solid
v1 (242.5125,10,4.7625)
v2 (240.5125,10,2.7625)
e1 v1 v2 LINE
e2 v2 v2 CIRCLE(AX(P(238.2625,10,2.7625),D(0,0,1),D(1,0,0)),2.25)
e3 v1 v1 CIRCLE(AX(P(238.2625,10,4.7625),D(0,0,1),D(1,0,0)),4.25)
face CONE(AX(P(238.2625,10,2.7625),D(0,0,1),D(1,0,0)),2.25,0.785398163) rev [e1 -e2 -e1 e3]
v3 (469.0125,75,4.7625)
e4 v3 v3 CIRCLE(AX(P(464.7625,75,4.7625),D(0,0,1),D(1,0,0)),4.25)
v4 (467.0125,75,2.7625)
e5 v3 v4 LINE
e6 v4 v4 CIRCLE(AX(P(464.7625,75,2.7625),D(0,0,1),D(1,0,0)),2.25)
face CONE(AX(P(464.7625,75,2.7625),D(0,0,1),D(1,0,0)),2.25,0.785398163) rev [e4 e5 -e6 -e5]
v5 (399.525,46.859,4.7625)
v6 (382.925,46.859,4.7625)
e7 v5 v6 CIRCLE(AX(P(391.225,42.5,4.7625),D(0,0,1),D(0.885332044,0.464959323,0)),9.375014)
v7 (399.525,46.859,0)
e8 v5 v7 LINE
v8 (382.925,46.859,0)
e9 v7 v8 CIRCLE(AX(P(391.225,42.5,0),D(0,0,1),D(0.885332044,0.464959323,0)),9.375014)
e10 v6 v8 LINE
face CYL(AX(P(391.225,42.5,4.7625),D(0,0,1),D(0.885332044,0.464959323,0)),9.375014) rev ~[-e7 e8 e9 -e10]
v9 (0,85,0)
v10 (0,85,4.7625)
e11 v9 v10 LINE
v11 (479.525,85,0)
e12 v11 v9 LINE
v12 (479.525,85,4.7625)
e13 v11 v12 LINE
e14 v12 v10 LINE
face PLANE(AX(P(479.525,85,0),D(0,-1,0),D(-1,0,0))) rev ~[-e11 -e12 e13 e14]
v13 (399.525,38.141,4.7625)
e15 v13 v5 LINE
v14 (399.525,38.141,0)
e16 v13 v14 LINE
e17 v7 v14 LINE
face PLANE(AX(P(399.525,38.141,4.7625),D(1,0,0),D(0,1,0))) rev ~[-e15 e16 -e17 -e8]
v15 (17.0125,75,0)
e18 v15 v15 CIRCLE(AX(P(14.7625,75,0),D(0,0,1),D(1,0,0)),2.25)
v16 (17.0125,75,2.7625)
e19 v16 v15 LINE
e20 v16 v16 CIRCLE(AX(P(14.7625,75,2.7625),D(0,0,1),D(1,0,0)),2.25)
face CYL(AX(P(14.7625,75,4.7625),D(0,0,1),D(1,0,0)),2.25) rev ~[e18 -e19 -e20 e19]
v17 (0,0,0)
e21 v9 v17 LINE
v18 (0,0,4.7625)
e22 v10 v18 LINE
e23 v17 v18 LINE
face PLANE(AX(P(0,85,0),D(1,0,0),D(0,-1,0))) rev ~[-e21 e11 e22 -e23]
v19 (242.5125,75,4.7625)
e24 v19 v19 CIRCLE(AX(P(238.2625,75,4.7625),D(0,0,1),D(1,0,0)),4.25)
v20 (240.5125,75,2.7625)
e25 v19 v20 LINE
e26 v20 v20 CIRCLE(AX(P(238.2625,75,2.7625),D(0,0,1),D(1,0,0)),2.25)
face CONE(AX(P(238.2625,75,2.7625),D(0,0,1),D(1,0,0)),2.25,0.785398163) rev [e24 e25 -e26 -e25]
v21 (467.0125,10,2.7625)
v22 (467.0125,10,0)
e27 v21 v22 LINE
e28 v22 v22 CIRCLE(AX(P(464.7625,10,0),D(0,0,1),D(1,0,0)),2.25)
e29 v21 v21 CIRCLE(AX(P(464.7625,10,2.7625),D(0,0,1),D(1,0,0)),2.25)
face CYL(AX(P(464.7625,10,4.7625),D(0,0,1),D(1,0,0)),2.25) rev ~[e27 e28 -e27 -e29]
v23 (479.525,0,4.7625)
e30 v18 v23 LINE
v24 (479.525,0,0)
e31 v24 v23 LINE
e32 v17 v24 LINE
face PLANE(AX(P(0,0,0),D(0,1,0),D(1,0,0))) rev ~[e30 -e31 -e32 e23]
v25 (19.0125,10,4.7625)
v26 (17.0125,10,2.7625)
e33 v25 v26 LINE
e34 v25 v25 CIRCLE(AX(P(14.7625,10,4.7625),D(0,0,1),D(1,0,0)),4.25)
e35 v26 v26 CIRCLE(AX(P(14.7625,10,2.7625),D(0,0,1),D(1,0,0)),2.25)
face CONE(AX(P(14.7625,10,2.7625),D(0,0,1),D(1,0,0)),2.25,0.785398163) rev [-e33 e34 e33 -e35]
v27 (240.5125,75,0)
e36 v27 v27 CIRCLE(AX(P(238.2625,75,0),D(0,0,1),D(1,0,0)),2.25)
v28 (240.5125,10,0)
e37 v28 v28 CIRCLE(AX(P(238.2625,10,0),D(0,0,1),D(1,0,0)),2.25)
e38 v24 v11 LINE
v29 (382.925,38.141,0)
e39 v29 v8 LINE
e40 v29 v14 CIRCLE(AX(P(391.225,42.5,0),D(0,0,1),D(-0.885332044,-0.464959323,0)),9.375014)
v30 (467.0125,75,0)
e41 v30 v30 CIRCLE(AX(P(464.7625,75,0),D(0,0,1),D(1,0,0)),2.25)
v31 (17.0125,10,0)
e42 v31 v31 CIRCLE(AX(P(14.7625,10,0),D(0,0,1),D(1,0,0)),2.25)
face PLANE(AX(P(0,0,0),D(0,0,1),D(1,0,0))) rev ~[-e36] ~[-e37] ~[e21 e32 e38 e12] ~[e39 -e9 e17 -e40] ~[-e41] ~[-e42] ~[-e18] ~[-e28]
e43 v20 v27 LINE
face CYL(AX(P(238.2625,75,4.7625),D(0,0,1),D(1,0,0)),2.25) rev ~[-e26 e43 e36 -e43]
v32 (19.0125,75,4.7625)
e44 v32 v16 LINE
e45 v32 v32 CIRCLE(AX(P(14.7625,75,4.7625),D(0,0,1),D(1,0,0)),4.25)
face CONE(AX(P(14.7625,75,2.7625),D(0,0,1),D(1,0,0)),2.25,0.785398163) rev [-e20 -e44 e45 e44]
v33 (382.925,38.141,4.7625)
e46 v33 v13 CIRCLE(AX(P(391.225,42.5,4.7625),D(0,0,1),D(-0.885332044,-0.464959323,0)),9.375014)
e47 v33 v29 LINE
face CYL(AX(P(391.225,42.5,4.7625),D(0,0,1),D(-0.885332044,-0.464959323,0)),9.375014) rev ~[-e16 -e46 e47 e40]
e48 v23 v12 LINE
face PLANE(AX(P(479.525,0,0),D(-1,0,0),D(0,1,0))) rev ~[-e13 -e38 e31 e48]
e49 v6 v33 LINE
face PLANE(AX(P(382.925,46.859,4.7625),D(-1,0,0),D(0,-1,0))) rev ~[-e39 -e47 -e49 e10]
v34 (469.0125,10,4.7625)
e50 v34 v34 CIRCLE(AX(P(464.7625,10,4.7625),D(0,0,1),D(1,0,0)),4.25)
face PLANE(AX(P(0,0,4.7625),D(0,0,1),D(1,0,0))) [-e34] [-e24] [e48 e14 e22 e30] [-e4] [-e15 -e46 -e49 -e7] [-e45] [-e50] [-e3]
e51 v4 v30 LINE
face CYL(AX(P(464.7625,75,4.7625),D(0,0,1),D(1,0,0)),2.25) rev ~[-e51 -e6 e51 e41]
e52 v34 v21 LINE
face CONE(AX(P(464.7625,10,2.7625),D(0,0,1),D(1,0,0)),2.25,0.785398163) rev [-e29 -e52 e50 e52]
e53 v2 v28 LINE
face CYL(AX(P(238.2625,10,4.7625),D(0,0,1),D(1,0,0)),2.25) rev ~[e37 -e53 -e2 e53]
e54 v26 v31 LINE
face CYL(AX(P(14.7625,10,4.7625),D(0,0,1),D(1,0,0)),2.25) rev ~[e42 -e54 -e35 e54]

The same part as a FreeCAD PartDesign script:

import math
import FreeCAD as App
import Part
import Sketcher
Q = App.Units.Quantity


def edges_at(feature, points):
    """Names of the edges that pass closest to the given points."""
    edges = feature.Shape.Edges
    near = lambda p: min(range(len(edges)), key=lambda i: edges[i].distToShape(Part.Vertex(*p))[0])
    return sorted({f"Edge{near(p) + 1}" for p in points})


def add_polygon(sketch, points):
    """Adds a closed chain of lines whose ends are joined by coincident constraints."""
    first, n = sketch.GeometryCount, len(points)
    for a, b in zip(points, points[1:] + points[:1]):
        sketch.addGeometry(Part.LineSegment(App.Vector(*a, 0), App.Vector(*b, 0)), False)
    for i in range(n):
        sketch.addConstraint(Sketcher.Constraint("Coincident", first + i, 2, first + (i + 1) % n, 1))

doc = App.newDocument("Part")
body = doc.addObject("PartDesign::Body", "Body")

# Sketch on XY plane
sketch1 = doc.addObject("Sketcher::SketchObject", "Sketch")
body.addObject(sketch1)
sketch1.AttachmentSupport = (doc.XY_Plane, [""])
sketch1.MapMode = "FlatFace"
add_polygon(sketch1, [(0, 85), (0, 0), (480, 0), (480, 85)])  # lines 0-3
sketch1.addConstraint(Sketcher.Constraint("Vertical", 0))
sketch1.addConstraint(Sketcher.Constraint("Horizontal", 1))
sketch1.addConstraint(Sketcher.Constraint("Vertical", 2))
sketch1.addConstraint(Sketcher.Constraint("Horizontal", 3))
sketch1.addConstraint(Sketcher.Constraint("Coincident", 0, 2, -1, 1))
sketch1.addConstraint(Sketcher.Constraint("DistanceY", 0, 2, 0, 1, Q("85 mm")))
sketch1.addConstraint(Sketcher.Constraint("DistanceX", 1, 1, 1, 2, Q("479.525 mm")))
pad1 = doc.addObject("PartDesign::Pad", "Pad")
body.addObject(pad1)
pad1.Profile = sketch1
pad1.Length = 4.7625

# Sketch on XY plane
sketch2 = doc.addObject("Sketcher::SketchObject", "Sketch001")
body.addObject(sketch2)
sketch2.AttachmentSupport = (doc.XY_Plane, [""])
sketch2.MapMode = "FlatFace"
sketch2.AttachmentOffset = App.Placement(App.Vector(0, 0, 4.7625), App.Rotation())
sketch2.addGeometry(Part.ArcOfCircle(Part.Circle(App.Vector(391, 42, 0), App.Vector(0, 0, 1), 9), math.radians(28), math.radians(152)), False)
sketch2.addGeometry(Part.LineSegment(App.Vector(383, 47, 0), App.Vector(383, 38, 0)), False)
sketch2.addGeometry(Part.ArcOfCircle(Part.Circle(App.Vector(391, 42, 0), App.Vector(0, 0, 1), 9), math.radians(-152), math.radians(-28)), False)
sketch2.addGeometry(Part.LineSegment(App.Vector(400, 38, 0), App.Vector(400, 47, 0)), False)
sketch2.addConstraint(Sketcher.Constraint("Coincident", 0, 2, 1, 1))
sketch2.addConstraint(Sketcher.Constraint("Coincident", 1, 2, 2, 1))
sketch2.addConstraint(Sketcher.Constraint("Coincident", 2, 2, 3, 1))
sketch2.addConstraint(Sketcher.Constraint("Coincident", 3, 2, 0, 1))
sketch2.addConstraint(Sketcher.Constraint("Vertical", 1))
sketch2.addConstraint(Sketcher.Constraint("Vertical", 3))
sketch2.addConstraint(Sketcher.Constraint("Coincident", 2, 3, 0, 3))
sketch2.addConstraint(Sketcher.Constraint("Equal", 0, 2))
sketch2.addConstraint(Sketcher.Constraint("Horizontal", 1, 2, 2, 2))
sketch2.addConstraint(Sketcher.Constraint("Radius", 0, Q("9.375 mm")))
sketch2.addConstraint(Sketcher.Constraint("DistanceY", -1, 1, 0, 3, Q("42.5 mm")))
sketch2.addConstraint(Sketcher.Constraint("DistanceX", 1, 2, 2, 2, Q("16.6 mm")))
sketch2.addConstraint(Sketcher.Constraint("DistanceX", -1, 1, 0, 3, Q("391.225 mm")))
pocket1 = doc.addObject("PartDesign::Pocket", "Pocket")
body.addObject(pocket1)
pocket1.Profile = sketch2
pocket1.Type = "UpToFirst"

# Sketch on XY plane
sketch3 = doc.addObject("Sketcher::SketchObject", "Sketch002")
body.addObject(sketch3)
sketch3.AttachmentSupport = (doc.XY_Plane, [""])
sketch3.MapMode = "FlatFace"
sketch3.AttachmentOffset = App.Placement(App.Vector(0, 0, 4.7625), App.Rotation())
sketch3.addGeometry(Part.Circle(App.Vector(14.8, 75, 0), App.Vector(0, 0, 1), 2.2), False)
sketch3.addGeometry(Part.Circle(App.Vector(14.8, 10, 0), App.Vector(0, 0, 1), 2.2), False)
sketch3.addGeometry(Part.Circle(App.Vector(464.8, 75, 0), App.Vector(0, 0, 1), 2.2), False)
sketch3.addGeometry(Part.Circle(App.Vector(464.8, 10, 0), App.Vector(0, 0, 1), 2.2), False)
sketch3.addGeometry(Part.Circle(App.Vector(238.3, 10, 0), App.Vector(0, 0, 1), 2.2), False)
sketch3.addGeometry(Part.Circle(App.Vector(238.3, 75, 0), App.Vector(0, 0, 1), 2.2), False)
sketch3.addConstraint(Sketcher.Constraint("Equal", 0, 1))
sketch3.addConstraint(Sketcher.Constraint("Equal", 1, 2))
sketch3.addConstraint(Sketcher.Constraint("Equal", 2, 3))
sketch3.addConstraint(Sketcher.Constraint("Equal", 3, 4))
sketch3.addConstraint(Sketcher.Constraint("Equal", 4, 5))
sketch3.addConstraint(Sketcher.Constraint("Horizontal", 0, 3, 2, 3))
sketch3.addConstraint(Sketcher.Constraint("Horizontal", 1, 3, 3, 3))
sketch3.addConstraint(Sketcher.Constraint("Horizontal", 3, 3, 4, 3))
sketch3.addConstraint(Sketcher.Constraint("Horizontal", 2, 3, 5, 3))
sketch3.addConstraint(Sketcher.Constraint("Vertical", 0, 3, 1, 3))
sketch3.addConstraint(Sketcher.Constraint("Vertical", 2, 3, 3, 3))
sketch3.addConstraint(Sketcher.Constraint("Vertical", 4, 3, 5, 3))
sketch3.addConstraint(Sketcher.Constraint("Diameter", 0, Q("4.5 mm")))
sketch3.addConstraint(Sketcher.Constraint("DistanceY", -1, 1, 1, 3, Q("10 mm")))
sketch3.addConstraint(Sketcher.Constraint("DistanceY", -1, 1, 0, 3, Q("75 mm")))
sketch3.addConstraint(Sketcher.Constraint("DistanceX", 0, 3, 2, 3, Q("450 mm")))
sketch3.addConstraint(Sketcher.Constraint("DistanceX", -1, 1, 0, 3, Q("14.7625 mm")))
sketch3.addConstraint(Sketcher.Constraint("DistanceX", 1, 3, 4, 3, Q("223.5 mm")))
pocket2 = doc.addObject("PartDesign::Pocket", "Pocket001")
body.addObject(pocket2)
pocket2.Profile = sketch3
pocket2.Type = "UpToFirst"
doc.recompute()

chamfer = doc.addObject("PartDesign::Chamfer", "Chamfer")
body.addObject(chamfer)
chamfer.Base = (pocket2, edges_at(pocket2, [
    (236.012, 75, 4.763),
    (236.012, 10, 4.763),
    (462.512, 10, 4.763),
    (462.512, 75, 4.763),
    (12.512, 75, 4.763),
    (12.512, 10, 4.763),
]))
chamfer.Size = 2

doc.recompute()
